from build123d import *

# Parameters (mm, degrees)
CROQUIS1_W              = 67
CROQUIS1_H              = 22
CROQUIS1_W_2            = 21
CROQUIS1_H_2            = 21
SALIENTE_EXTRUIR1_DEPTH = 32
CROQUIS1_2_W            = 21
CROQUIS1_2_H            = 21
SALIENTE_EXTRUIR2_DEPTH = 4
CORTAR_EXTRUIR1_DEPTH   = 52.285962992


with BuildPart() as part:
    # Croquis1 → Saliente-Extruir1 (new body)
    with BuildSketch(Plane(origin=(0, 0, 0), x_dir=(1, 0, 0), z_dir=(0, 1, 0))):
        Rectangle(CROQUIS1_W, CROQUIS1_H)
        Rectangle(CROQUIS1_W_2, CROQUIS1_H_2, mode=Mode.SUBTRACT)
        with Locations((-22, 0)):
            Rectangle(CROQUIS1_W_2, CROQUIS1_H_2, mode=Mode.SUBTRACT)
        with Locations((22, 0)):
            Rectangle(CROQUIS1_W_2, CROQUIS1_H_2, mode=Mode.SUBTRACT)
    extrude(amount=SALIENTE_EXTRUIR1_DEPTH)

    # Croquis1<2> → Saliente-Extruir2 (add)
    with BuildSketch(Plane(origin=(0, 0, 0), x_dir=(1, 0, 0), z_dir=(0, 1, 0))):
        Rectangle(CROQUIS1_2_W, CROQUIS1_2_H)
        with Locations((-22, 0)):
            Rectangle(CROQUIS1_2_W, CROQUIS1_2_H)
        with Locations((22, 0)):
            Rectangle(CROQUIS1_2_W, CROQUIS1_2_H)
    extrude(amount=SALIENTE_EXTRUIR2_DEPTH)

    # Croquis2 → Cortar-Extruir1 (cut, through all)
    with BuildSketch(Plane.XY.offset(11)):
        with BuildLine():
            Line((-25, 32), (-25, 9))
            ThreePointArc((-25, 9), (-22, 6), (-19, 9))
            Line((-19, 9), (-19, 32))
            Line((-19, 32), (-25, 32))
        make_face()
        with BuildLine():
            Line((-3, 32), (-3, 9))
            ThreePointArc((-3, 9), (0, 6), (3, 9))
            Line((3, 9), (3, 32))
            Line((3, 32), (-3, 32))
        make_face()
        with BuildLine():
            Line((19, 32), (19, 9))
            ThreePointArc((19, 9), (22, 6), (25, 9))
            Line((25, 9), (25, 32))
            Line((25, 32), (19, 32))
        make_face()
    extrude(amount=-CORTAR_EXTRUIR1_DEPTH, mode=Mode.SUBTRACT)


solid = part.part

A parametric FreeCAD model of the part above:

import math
import FreeCAD as App
import Part
import Sketcher

V = App.Vector
Q = App.Units.Quantity

doc = App.newDocument("Part")
body = doc.addObject("PartDesign::Body", "Body")

sketch1 = body.newObject("Sketcher::SketchObject", "Sketch")
sketch1.AttachmentSupport = (doc.getObject("XZ_Plane"), [""])
sketch1.MapMode = "FlatFace"
sketch1.addGeometry([
    Part.LineSegment(V(-34, -11, 0), V(-34, 11, 0)),
    Part.LineSegment(V(-34, 11, 0), V(34, 11, 0)),
    Part.LineSegment(V(34, 11, 0), V(34, -11, 0)),
    Part.LineSegment(V(34, -11, 0), V(-34, -11, 0)),
    Part.LineSegment(V(-12, 10, 0), V(-32, 10, 0)),
    Part.LineSegment(V(-32, 10, 0), V(-32, -10, 0)),
    Part.LineSegment(V(-32, -10, 0), V(-12, -10, 0)),
    Part.LineSegment(V(-12, -10, 0), V(-12, 10, 0)),
    Part.LineSegment(V(10, 10, 0), V(-10, 10, 0)),
    Part.LineSegment(V(-10, 10, 0), V(-10, -10, 0)),
    Part.LineSegment(V(-10, -10, 0), V(10, -10, 0)),
    Part.LineSegment(V(10, -10, 0), V(10, 10, 0)),
    Part.LineSegment(V(32, 10, 0), V(12, 10, 0)),
    Part.LineSegment(V(12, 10, 0), V(12, -10, 0)),
    Part.LineSegment(V(12, -10, 0), V(32, -10, 0)),
    Part.LineSegment(V(32, -10, 0), V(32, 10, 0)),
], False)
sketch1.addConstraint([
    Sketcher.Constraint("Coincident", 0, 2, 1, 1),
    Sketcher.Constraint("Coincident", 1, 2, 2, 1),
    Sketcher.Constraint("Coincident", 2, 2, 3, 1),
    Sketcher.Constraint("Coincident", 3, 2, 0, 1),
    Sketcher.Constraint("Coincident", 4, 2, 5, 1),
    Sketcher.Constraint("Coincident", 5, 2, 6, 1),
    Sketcher.Constraint("Coincident", 6, 2, 7, 1),
    Sketcher.Constraint("Coincident", 7, 2, 4, 1),
    Sketcher.Constraint("Coincident", 8, 2, 9, 1),
    Sketcher.Constraint("Coincident", 9, 2, 10, 1),
    Sketcher.Constraint("Coincident", 10, 2, 11, 1),
    Sketcher.Constraint("Coincident", 11, 2, 8, 1),
    Sketcher.Constraint("Coincident", 12, 2, 13, 1),
    Sketcher.Constraint("Coincident", 13, 2, 14, 1),
    Sketcher.Constraint("Coincident", 14, 2, 15, 1),
    Sketcher.Constraint("Coincident", 15, 2, 12, 1),
    Sketcher.Constraint("Vertical", 0),
    Sketcher.Constraint("Horizontal", 1),
    Sketcher.Constraint("Vertical", 2),
    Sketcher.Constraint("Horizontal", 3),
    Sketcher.Constraint("Horizontal", 4),
    Sketcher.Constraint("Vertical", 5),
    Sketcher.Constraint("Horizontal", 6),
    Sketcher.Constraint("Vertical", 7),
    Sketcher.Constraint("Horizontal", 8),
    Sketcher.Constraint("Vertical", 9),
    Sketcher.Constraint("Horizontal", 10),
    Sketcher.Constraint("Vertical", 11),
    Sketcher.Constraint("Horizontal", 12),
    Sketcher.Constraint("Vertical", 13),
    Sketcher.Constraint("Horizontal", 14),
    Sketcher.Constraint("Vertical", 15),
    Sketcher.Constraint("Symmetric", 0, 2, 2, 2, -1, 1),
    Sketcher.Constraint("Symmetric", 8, 2, 10, 2, -1, 1),
    Sketcher.Constraint("Symmetric", 6, 2, 12, 2, -1, 1),
    Sketcher.Constraint("Symmetric", 4, 2, 14, 2, -1, 1),
    Sketcher.Constraint("Horizontal", 7, 2, 8, 2),
    Sketcher.Constraint("Horizontal", 6, 2, 9, 2),
    Sketcher.Constraint("Equal", 6, 8),
    Sketcher.Constraint("Equal", 14, 5),
    Sketcher.Constraint("DistanceX", 1, 1, 1, 2, Q("67 mm")),
    Sketcher.Constraint("DistanceX", 4, 2, 4, 1, Q("21 mm")),
    Sketcher.Constraint("DistanceY", 0, 1, 0, 2, Q("22 mm")),
    Sketcher.Constraint("DistanceX", 0, 2, 4, 2, Q("1 mm")),
])
pad1 = body.newObject("PartDesign::Pad", "Pad")
pad1.Profile = sketch1
pad1.Length = 32
pad1.Reversed = True

sketch2 = body.newObject("Sketcher::SketchObject", "Sketch001")
sketch2.AttachmentSupport = (doc.getObject("XZ_Plane"), [""])
sketch2.MapMode = "FlatFace"
sketch2.addGeometry([
    Part.LineSegment(V(-10, -10, 0), V(-10, 10, 0)),
    Part.LineSegment(V(-10, 10, 0), V(10, 10, 0)),
    Part.LineSegment(V(10, 10, 0), V(10, -10, 0)),
    Part.LineSegment(V(10, -10, 0), V(-10, -10, 0)),
    Part.LineSegment(V(-32, -10, 0), V(-32, 10, 0)),
    Part.LineSegment(V(-32, 10, 0), V(-12, 10, 0)),
    Part.LineSegment(V(-12, 10, 0), V(-12, -10, 0)),
    Part.LineSegment(V(-12, -10, 0), V(-32, -10, 0)),
    Part.LineSegment(V(12, -10, 0), V(12, 10, 0)),
    Part.LineSegment(V(12, 10, 0), V(32, 10, 0)),
    Part.LineSegment(V(32, 10, 0), V(32, -10, 0)),
    Part.LineSegment(V(32, -10, 0), V(12, -10, 0)),
], False)
sketch2.addConstraint([
    Sketcher.Constraint("Coincident", 0, 2, 1, 1),
    Sketcher.Constraint("Coincident", 1, 2, 2, 1),
    Sketcher.Constraint("Coincident", 2, 2, 3, 1),
    Sketcher.Constraint("Coincident", 3, 2, 0, 1),
    Sketcher.Constraint("Coincident", 4, 2, 5, 1),
    Sketcher.Constraint("Coincident", 5, 2, 6, 1),
    Sketcher.Constraint("Coincident", 6, 2, 7, 1),
    Sketcher.Constraint("Coincident", 7, 2, 4, 1),
    Sketcher.Constraint("Coincident", 8, 2, 9, 1),
    Sketcher.Constraint("Coincident", 9, 2, 10, 1),
    Sketcher.Constraint("Coincident", 10, 2, 11, 1),
    Sketcher.Constraint("Coincident", 11, 2, 8, 1),
    Sketcher.Constraint("Vertical", 0),
    Sketcher.Constraint("Horizontal", 1),
    Sketcher.Constraint("Vertical", 2),
    Sketcher.Constraint("Horizontal", 3),
    Sketcher.Constraint("Vertical", 4),
    Sketcher.Constraint("Horizontal", 5),
    Sketcher.Constraint("Vertical", 6),
    Sketcher.Constraint("Horizontal", 7),
    Sketcher.Constraint("Vertical", 8),
    Sketcher.Constraint("Horizontal", 9),
    Sketcher.Constraint("Vertical", 10),
    Sketcher.Constraint("Horizontal", 11),
    Sketcher.Constraint("Symmetric", 0, 2, 2, 2, -1, 1),
    Sketcher.Constraint("Symmetric", 6, 2, 8, 2, -1, 1),
    Sketcher.Constraint("Symmetric", 4, 2, 10, 2, -1, 1),
    Sketcher.Constraint("Horizontal", 1, 2, 4, 2),
    Sketcher.Constraint("Horizontal", 3, 2, 6, 2),
    Sketcher.Constraint("Equal", 3, 5),
    Sketcher.Constraint("Equal", 11, 0),
    Sketcher.Constraint("DistanceX", 1, 1, 1, 2, Q("21 mm")),
    Sketcher.Constraint("DistanceX", 4, 2, 0, 2, Q("22 mm")),
])
pad2 = body.newObject("PartDesign::Pad", "Pad001")
pad2.Profile = sketch2
pad2.Length = 4
pad2.Reversed = True

sketch3 = body.newObject("Sketcher::SketchObject", "Sketch002")
sketch3.AttachmentSupport = (doc.getObject("XY_Plane"), [""])
sketch3.MapMode = "FlatFace"
sketch3.AttachmentOffset = App.Placement(V(0, 0, 11), App.Rotation())
sketch3.addGeometry([
    Part.LineSegment(V(-25, 32, 0), V(-25, 9, 0)),
    Part.ArcOfCircle(Part.Circle(V(-22, 9, 0), V(0, 0, 1), 3), math.radians(180), math.radians(360)),
    Part.LineSegment(V(-19, 9, 0), V(-19, 32, 0)),
    Part.LineSegment(V(-19, 32, 0), V(-25, 32, 0)),
    Part.LineSegment(V(-3, 32, 0), V(-3, 9, 0)),
    Part.ArcOfCircle(Part.Circle(V(0, 9, 0), V(0, 0, 1), 3), math.radians(180), math.radians(360)),
    Part.LineSegment(V(3, 9, 0), V(3, 32, 0)),
    Part.LineSegment(V(3, 32, 0), V(-3, 32, 0)),
    Part.LineSegment(V(19, 32, 0), V(19, 9, 0)),
    Part.ArcOfCircle(Part.Circle(V(22, 9, 0), V(0, 0, 1), 3), math.radians(180), math.radians(360)),
    Part.LineSegment(V(25, 9, 0), V(25, 32, 0)),
    Part.LineSegment(V(25, 32, 0), V(19, 32, 0)),
], False)
sketch3.addConstraint([
    Sketcher.Constraint("Tangent", 0, 2, 1, 1),
    Sketcher.Constraint("Tangent", 1, 2, 2, 1),
    Sketcher.Constraint("Coincident", 2, 2, 3, 1),
    Sketcher.Constraint("Coincident", 3, 2, 0, 1),
    Sketcher.Constraint("Tangent", 4, 2, 5, 1),
    Sketcher.Constraint("Tangent", 5, 2, 6, 1),
    Sketcher.Constraint("Coincident", 6, 2, 7, 1),
    Sketcher.Constraint("Coincident", 7, 2, 4, 1),
    Sketcher.Constraint("Tangent", 8, 2, 9, 1),
    Sketcher.Constraint("Tangent", 9, 2, 10, 1),
    Sketcher.Constraint("Coincident", 10, 2, 11, 1),
    Sketcher.Constraint("Coincident", 11, 2, 8, 1),
    Sketcher.Constraint("Vertical", 0),
    Sketcher.Constraint("Vertical", 2),
    Sketcher.Constraint("Horizontal", 3),
    Sketcher.Constraint("Vertical", 4),
    Sketcher.Constraint("Vertical", 6),
    Sketcher.Constraint("Horizontal", 7),
    Sketcher.Constraint("Vertical", 8),
    Sketcher.Constraint("Vertical", 10),
    Sketcher.Constraint("Horizontal", 11),
    Sketcher.Constraint("Equal", 1, 5),
    Sketcher.Constraint("Equal", 5, 9),
    Sketcher.Constraint("Symmetric", 1, 3, 9, 3, -2),
    Sketcher.Constraint("PointOnObject", 5, 3, -2),
    Sketcher.Constraint("Horizontal", 1, 3, 5, 3),
    Sketcher.Constraint("Horizontal", 3, 2, 6, 2),
    Sketcher.Constraint("Horizontal", 7, 2, 10, 2),
    Sketcher.Constraint("Radius", 1, Q("3 mm")),
    Sketcher.Constraint("DistanceY", 0, 2, 0, 1, Q("23 mm")),
    Sketcher.Constraint("DistanceX", 1, 3, -1, 1, Q("22 mm")),
    Sketcher.Constraint("DistanceY", -1, 1, 1, 3, Q("9 mm")),
])
pocket1 = body.newObject("PartDesign::Pocket", "Pocket")
pocket1.Profile = sketch3
pocket1.Type = "ThroughAll"

doc.recompute()
